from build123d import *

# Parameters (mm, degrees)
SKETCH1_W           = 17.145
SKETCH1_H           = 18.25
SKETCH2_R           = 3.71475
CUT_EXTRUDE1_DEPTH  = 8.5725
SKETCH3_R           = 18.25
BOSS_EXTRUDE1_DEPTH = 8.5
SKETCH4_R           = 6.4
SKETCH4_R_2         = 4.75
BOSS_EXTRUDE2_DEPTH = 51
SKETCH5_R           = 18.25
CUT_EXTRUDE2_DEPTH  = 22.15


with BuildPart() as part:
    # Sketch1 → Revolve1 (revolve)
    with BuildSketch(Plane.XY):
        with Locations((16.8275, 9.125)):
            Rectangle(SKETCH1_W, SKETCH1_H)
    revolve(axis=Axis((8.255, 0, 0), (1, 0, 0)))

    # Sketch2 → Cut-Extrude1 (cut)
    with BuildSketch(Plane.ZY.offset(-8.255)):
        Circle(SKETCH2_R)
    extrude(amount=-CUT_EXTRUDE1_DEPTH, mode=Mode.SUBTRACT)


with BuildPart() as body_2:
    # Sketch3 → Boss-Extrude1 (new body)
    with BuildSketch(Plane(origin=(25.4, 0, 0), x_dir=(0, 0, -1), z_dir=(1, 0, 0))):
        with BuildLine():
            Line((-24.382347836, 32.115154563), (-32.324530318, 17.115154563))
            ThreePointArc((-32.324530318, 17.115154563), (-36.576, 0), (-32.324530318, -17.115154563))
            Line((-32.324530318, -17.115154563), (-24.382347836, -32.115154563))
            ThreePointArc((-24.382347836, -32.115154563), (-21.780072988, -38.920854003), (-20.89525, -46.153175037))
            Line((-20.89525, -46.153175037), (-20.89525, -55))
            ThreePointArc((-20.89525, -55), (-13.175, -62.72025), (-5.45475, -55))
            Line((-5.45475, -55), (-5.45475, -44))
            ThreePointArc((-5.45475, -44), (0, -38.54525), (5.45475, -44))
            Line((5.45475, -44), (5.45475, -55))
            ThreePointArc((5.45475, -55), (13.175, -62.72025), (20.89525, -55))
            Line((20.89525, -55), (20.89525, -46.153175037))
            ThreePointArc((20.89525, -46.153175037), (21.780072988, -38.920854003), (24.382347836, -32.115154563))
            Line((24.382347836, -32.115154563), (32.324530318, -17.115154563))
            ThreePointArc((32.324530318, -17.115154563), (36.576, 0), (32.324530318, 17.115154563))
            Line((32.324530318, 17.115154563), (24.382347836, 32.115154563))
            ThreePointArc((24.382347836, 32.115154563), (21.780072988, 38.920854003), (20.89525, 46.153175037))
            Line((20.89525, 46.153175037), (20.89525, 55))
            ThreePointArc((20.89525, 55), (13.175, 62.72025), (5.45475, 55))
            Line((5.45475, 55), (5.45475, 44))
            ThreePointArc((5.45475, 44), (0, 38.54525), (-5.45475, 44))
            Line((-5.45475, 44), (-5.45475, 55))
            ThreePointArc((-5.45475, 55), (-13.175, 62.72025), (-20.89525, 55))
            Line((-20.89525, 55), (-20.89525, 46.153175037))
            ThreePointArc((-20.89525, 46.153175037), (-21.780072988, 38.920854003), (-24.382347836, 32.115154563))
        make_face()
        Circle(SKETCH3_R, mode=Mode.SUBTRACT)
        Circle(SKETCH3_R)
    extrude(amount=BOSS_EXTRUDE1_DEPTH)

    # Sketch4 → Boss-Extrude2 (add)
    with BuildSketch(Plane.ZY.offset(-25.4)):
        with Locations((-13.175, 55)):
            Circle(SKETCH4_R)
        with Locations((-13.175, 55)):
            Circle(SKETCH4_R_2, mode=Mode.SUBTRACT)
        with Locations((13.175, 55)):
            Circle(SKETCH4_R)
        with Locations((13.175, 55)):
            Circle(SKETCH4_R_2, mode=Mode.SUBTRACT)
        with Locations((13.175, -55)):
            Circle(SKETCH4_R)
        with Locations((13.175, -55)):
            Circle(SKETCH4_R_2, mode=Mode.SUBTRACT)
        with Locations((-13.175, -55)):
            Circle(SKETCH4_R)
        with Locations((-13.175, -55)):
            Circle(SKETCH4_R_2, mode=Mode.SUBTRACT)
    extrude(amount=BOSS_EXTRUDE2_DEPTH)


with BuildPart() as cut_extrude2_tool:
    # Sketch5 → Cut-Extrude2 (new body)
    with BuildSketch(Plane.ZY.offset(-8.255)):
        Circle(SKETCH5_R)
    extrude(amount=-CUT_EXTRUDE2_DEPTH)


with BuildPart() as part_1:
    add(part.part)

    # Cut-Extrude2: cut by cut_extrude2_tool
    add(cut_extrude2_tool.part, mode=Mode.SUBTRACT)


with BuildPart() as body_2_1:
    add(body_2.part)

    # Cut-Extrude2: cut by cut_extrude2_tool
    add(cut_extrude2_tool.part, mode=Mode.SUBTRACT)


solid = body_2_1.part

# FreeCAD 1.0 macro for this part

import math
import FreeCAD as App
import Part
import Sketcher

V = App.Vector


def add_polygon(sketch, points):
    """Adds a closed chain of lines whose ends are joined by coincident constraints."""
    first, n = sketch.GeometryCount, len(points)
    for a, b in zip(points, points[1:] + points[:1]):
        sketch.addGeometry(Part.LineSegment(App.Vector(*a, 0), App.Vector(*b, 0)), False)
    for i in range(n):
        sketch.addConstraint(Sketcher.Constraint("Coincident", first + i, 2, first + (i + 1) % n, 1))

doc = App.newDocument("Part")
body = doc.addObject("PartDesign::Body", "Body")

# Sketch on XY plane
sketch1 = body.newObject("Sketcher::SketchObject", "Sketch")
sketch1.AttachmentSupport = (doc.getObject("XY_Plane"), [""])
sketch1.MapMode = "FlatFace"
add_polygon(sketch1, [(8, 18), (8, 0), (25, 0), (25, 18)])  # lines 0-3
sketch1.addConstraint(Sketcher.Constraint("Vertical", 0))
sketch1.addConstraint(Sketcher.Constraint("Horizontal", 1))
sketch1.addConstraint(Sketcher.Constraint("Vertical", 2))
sketch1.addConstraint(Sketcher.Constraint("Horizontal", 3))
sketch1.addConstraint(Sketcher.Constraint("PointOnObject", 0, 2, -1))
sketch1.addConstraint(Sketcher.Constraint("DistanceY", 0, 2, 0, 1, 18.25))
sketch1.addConstraint(Sketcher.Constraint("DistanceX", -1, 1, 1, 2, 25.4))
sketch1.addConstraint(Sketcher.Constraint("DistanceX", 1, 1, 1, 2, 17.145))
revolution = body.newObject("PartDesign::Revolution", "Revolution")
revolution.Profile = sketch1
revolution.ReferenceAxis = (sketch1, ["H_Axis"])
revolution.Angle = 360

# Sketch on YZ plane
sketch2 = body.newObject("Sketcher::SketchObject", "Sketch001")
sketch2.AttachmentSupport = (doc.getObject("YZ_Plane"), [""])
sketch2.MapMode = "FlatFace"
sketch2.AttachmentOffset = App.Placement(V(0, 0, 8.255), App.Rotation())
sketch2.addGeometry(Part.Circle(V(0, 0, 0), V(0, 0, 1), 3.7), False)
sketch2.addConstraint(Sketcher.Constraint("Coincident", 0, 3, -1, 1))
sketch2.addConstraint(Sketcher.Constraint("Diameter", 0, 7.4295))
pocket1 = body.newObject("PartDesign::Pocket", "Pocket")
pocket1.Profile = sketch2
pocket1.Length = 8.5725
pocket1.Reversed = True
body2 = doc.addObject("PartDesign::Body", "Body001")

# Sketch on YZ plane
sketch3 = body2.newObject("Sketcher::SketchObject", "Sketch002")
sketch3.AttachmentSupport = (doc.getObject("YZ_Plane001"), [""])
sketch3.MapMode = "FlatFace"
sketch3.AttachmentOffset = App.Placement(V(0, 0, 25.4), App.Rotation())
sketch3.addGeometry(Part.LineSegment(V(32, 24, 0), V(17, 32, 0)), False)
sketch3.addGeometry(Part.ArcOfCircle(Part.Circle(V(0, 0, 0), V(0, 0, 1), 37), math.radians(62), math.radians(118)), False)
sketch3.addGeometry(Part.LineSegment(V(-17, 32, 0), V(-32, 24, 0)), False)
sketch3.addGeometry(Part.ArcOfCircle(Part.Circle(V(-46, 51, 0), V(0, 0, 1), 30), math.radians(-90), math.radians(-62)), False)
sketch3.addGeometry(Part.LineSegment(V(-46, 21, 0), V(-55, 21, 0)), False)
sketch3.addGeometry(Part.ArcOfCircle(Part.Circle(V(-55, 13, 0), V(0, 0, 1), 8), math.radians(90), math.radians(270)), False)
sketch3.addGeometry(Part.LineSegment(V(-55, 5, 0), V(-44, 5, 0)), False)
sketch3.addGeometry(Part.ArcOfCircle(Part.Circle(V(-44, 0, 0), V(0, 0, 1), 5), math.radians(-90), math.radians(90)), False)
sketch3.addGeometry(Part.LineSegment(V(-44, -5, 0), V(-55, -5, 0)), False)
sketch3.addGeometry(Part.ArcOfCircle(Part.Circle(V(-55, -13, 0), V(0, 0, 1), 8), math.radians(90), math.radians(270)), False)
sketch3.addGeometry(Part.LineSegment(V(-55, -21, 0), V(-46, -21, 0)), False)
sketch3.addGeometry(Part.ArcOfCircle(Part.Circle(V(-46, -51, 0), V(0, 0, 1), 30), math.radians(62), math.radians(90)), False)
sketch3.addGeometry(Part.LineSegment(V(-32, -24, 0), V(-17, -32, 0)), False)
sketch3.addGeometry(Part.ArcOfCircle(Part.Circle(V(0, 0, 0), V(0, 0, 1), 37), math.radians(-118), math.radians(-62)), False)
sketch3.addGeometry(Part.LineSegment(V(17, -32, 0), V(32, -24, 0)), False)
sketch3.addGeometry(Part.ArcOfCircle(Part.Circle(V(46, -51, 0), V(0, 0, 1), 30), math.radians(90), math.radians(118)), False)
sketch3.addGeometry(Part.LineSegment(V(46, -21, 0), V(55, -21, 0)), False)
sketch3.addGeometry(Part.ArcOfCircle(Part.Circle(V(55, -13, 0), V(0, 0, 1), 8), math.radians(-90), math.radians(90)), False)
sketch3.addGeometry(Part.LineSegment(V(55, -5, 0), V(44, -5, 0)), False)
sketch3.addGeometry(Part.ArcOfCircle(Part.Circle(V(44, 0, 0), V(0, 0, 1), 5), math.radians(90), math.radians(270)), False)
sketch3.addGeometry(Part.LineSegment(V(44, 5, 0), V(55, 5, 0)), False)
sketch3.addGeometry(Part.ArcOfCircle(Part.Circle(V(55, 13, 0), V(0, 0, 1), 8), math.radians(-90), math.radians(90)), False)
sketch3.addGeometry(Part.LineSegment(V(55, 21, 0), V(46, 21, 0)), False)
sketch3.addGeometry(Part.ArcOfCircle(Part.Circle(V(46, 51, 0), V(0, 0, 1), 30), math.radians(-118), math.radians(-90)), False)
sketch3.addConstraint(Sketcher.Constraint("Tangent", 0, 2, 1, 1))
sketch3.addConstraint(Sketcher.Constraint("Tangent", 1, 2, 2, 1))
sketch3.addConstraint(Sketcher.Constraint("Tangent", 2, 2, 3, 2))
sketch3.addConstraint(Sketcher.Constraint("Tangent", 3, 1, 4, 1))
sketch3.addConstraint(Sketcher.Constraint("Tangent", 4, 2, 5, 1))
sketch3.addConstraint(Sketcher.Constraint("Tangent", 5, 2, 6, 1))
sketch3.addConstraint(Sketcher.Constraint("Tangent", 6, 2, 7, 2))
sketch3.addConstraint(Sketcher.Constraint("Tangent", 7, 1, 8, 1))
sketch3.addConstraint(Sketcher.Constraint("Tangent", 8, 2, 9, 1))
sketch3.addConstraint(Sketcher.Constraint("Tangent", 9, 2, 10, 1))
sketch3.addConstraint(Sketcher.Constraint("Tangent", 10, 2, 11, 2))
sketch3.addConstraint(Sketcher.Constraint("Tangent", 11, 1, 12, 1))
sketch3.addConstraint(Sketcher.Constraint("Tangent", 12, 2, 13, 1))
sketch3.addConstraint(Sketcher.Constraint("Tangent", 13, 2, 14, 1))
sketch3.addConstraint(Sketcher.Constraint("Tangent", 14, 2, 15, 2))
sketch3.addConstraint(Sketcher.Constraint("Tangent", 15, 1, 16, 1))
sketch3.addConstraint(Sketcher.Constraint("Tangent", 16, 2, 17, 1))
sketch3.addConstraint(Sketcher.Constraint("Tangent", 17, 2, 18, 1))
sketch3.addConstraint(Sketcher.Constraint("Tangent", 18, 2, 19, 2))
sketch3.addConstraint(Sketcher.Constraint("Tangent", 19, 1, 20, 1))
sketch3.addConstraint(Sketcher.Constraint("Tangent", 20, 2, 21, 1))
sketch3.addConstraint(Sketcher.Constraint("Tangent", 21, 2, 22, 1))
sketch3.addConstraint(Sketcher.Constraint("Tangent", 22, 2, 23, 2))
sketch3.addConstraint(Sketcher.Constraint("Tangent", 23, 1, 0, 1))
sketch3.addConstraint(Sketcher.Constraint("Horizontal", 4))
sketch3.addConstraint(Sketcher.Constraint("Horizontal", 6))
sketch3.addConstraint(Sketcher.Constraint("Horizontal", 8))
sketch3.addConstraint(Sketcher.Constraint("Horizontal", 10))
sketch3.addConstraint(Sketcher.Constraint("Horizontal", 16))
sketch3.addConstraint(Sketcher.Constraint("Horizontal", 18))
sketch3.addConstraint(Sketcher.Constraint("Horizontal", 20))
sketch3.addConstraint(Sketcher.Constraint("Horizontal", 22))
sketch3.addConstraint(Sketcher.Constraint("Coincident", 1, 3, -1, 1))
sketch3.addConstraint(Sketcher.Constraint("Coincident", 13, 3, -1, 1))
sketch3.addConstraint(Sketcher.Constraint("Equal", 5, 9))
sketch3.addConstraint(Sketcher.Constraint("Equal", 3, 11))
sketch3.addConstraint(Sketcher.Constraint("Equal", 1, 13))
sketch3.addConstraint(Sketcher.Constraint("Equal", 11, 15))
sketch3.addConstraint(Sketcher.Constraint("Equal", 9, 17))
sketch3.addConstraint(Sketcher.Constraint("Equal", 7, 19))
sketch3.addConstraint(Sketcher.Constraint("Equal", 17, 21))
sketch3.addConstraint(Sketcher.Constraint("Equal", 15, 23))
sketch3.addConstraint(Sketcher.Constraint("Symmetric", 3, 3, 15, 3, -1, 1))
sketch3.addConstraint(Sketcher.Constraint("Symmetric", 11, 3, 15, 3, -2))
sketch3.addConstraint(Sketcher.Constraint("Parallel", 0, 12))
sketch3.addConstraint(Sketcher.Constraint("Vertical", 5, 3, 9, 3))
sketch3.addConstraint(Sketcher.Constraint("Vertical", 17, 3, 21, 3))
sketch3.addConstraint(Sketcher.Constraint("Equal", 10, 16))
sketch3.addConstraint(Sketcher.Constraint("Equal", 8, 18))
sketch3.addConstraint(Sketcher.Constraint("Radius", 3, 30.0))
sketch3.addConstraint(Sketcher.Constraint("DistanceX", 6, 1, 6, 2, 11.0))
sketch3.addConstraint(Sketcher.Constraint("DistanceX", 5, 3, -1, 1, 55.0))
sketch3.addConstraint(Sketcher.Constraint("Radius", 1, 36.576))
sketch3.addConstraint(Sketcher.Constraint("DistanceX", 2, 2, 1, 2, 15.0))
sketch3.addConstraint(Sketcher.Constraint("Radius", 5, 7.72025))
sketch3.addConstraint(Sketcher.Constraint("Radius", 7, 5.45475))
pad1 = body2.newObject("PartDesign::Pad", "Pad")
pad1.Profile = sketch3
pad1.Length = 8.5

# Sketch on YZ plane
sketch4 = body2.newObject("Sketcher::SketchObject", "Sketch003")
sketch4.AttachmentSupport = (doc.getObject("YZ_Plane001"), [""])
sketch4.MapMode = "FlatFace"
sketch4.AttachmentOffset = App.Placement(V(0, 0, 25.4), App.Rotation())
sketch4.addGeometry(Part.Circle(V(55, -13.2, 0), V(0, 0, 1), 6.4), False)
sketch4.addGeometry(Part.Circle(V(55, -13.2, 0), V(0, 0, 1), 4.8), False)
sketch4.addGeometry(Part.Circle(V(55, 13.2, 0), V(0, 0, 1), 6.4), False)
sketch4.addGeometry(Part.Circle(V(55, 13.2, 0), V(0, 0, 1), 4.8), False)
sketch4.addGeometry(Part.Circle(V(-55, 13.2, 0), V(0, 0, 1), 6.4), False)
sketch4.addGeometry(Part.Circle(V(-55, 13.2, 0), V(0, 0, 1), 4.8), False)
sketch4.addGeometry(Part.Circle(V(-55, -13.2, 0), V(0, 0, 1), 6.4), False)
sketch4.addGeometry(Part.Circle(V(-55, -13.2, 0), V(0, 0, 1), 4.8), False)
sketch4.addConstraint(Sketcher.Constraint("Coincident", 1, 3, 0, 3))
sketch4.addConstraint(Sketcher.Constraint("Coincident", 3, 3, 2, 3))
sketch4.addConstraint(Sketcher.Constraint("Coincident", 5, 3, 4, 3))
sketch4.addConstraint(Sketcher.Constraint("Coincident", 7, 3, 6, 3))
sketch4.addConstraint(Sketcher.Constraint("Equal", 0, 2))
sketch4.addConstraint(Sketcher.Constraint("Equal", 1, 3))
sketch4.addConstraint(Sketcher.Constraint("Equal", 2, 4))
sketch4.addConstraint(Sketcher.Constraint("Equal", 3, 5))
sketch4.addConstraint(Sketcher.Constraint("Equal", 4, 6))
sketch4.addConstraint(Sketcher.Constraint("Equal", 5, 7))
sketch4.addConstraint(Sketcher.Constraint("Symmetric", 0, 3, 4, 3, -1, 1))
sketch4.addConstraint(Sketcher.Constraint("Symmetric", 2, 3, 6, 3, -1, 1))
sketch4.addConstraint(Sketcher.Constraint("Symmetric", 2, 3, 4, 3, -2))
sketch4.addConstraint(Sketcher.Constraint("Diameter", 0, 12.8))
sketch4.addConstraint(Sketcher.Constraint("Diameter", 1, 9.5))
sketch4.addConstraint(Sketcher.Constraint("DistanceX", -1, 1, 0, 3, 55.0))
sketch4.addConstraint(Sketcher.Constraint("DistanceY", 0, 3, 2, 3, 26.35))
pad2 = body2.newObject("PartDesign::Pad", "Pad001")
pad2.Profile = sketch4
pad2.Length = 51
pad2.Reversed = True
body3 = doc.addObject("PartDesign::Body", "Body002")

# Sketch on YZ plane
sketch5 = body3.newObject("Sketcher::SketchObject", "Sketch004")
sketch5.AttachmentSupport = (doc.getObject("YZ_Plane002"), [""])
sketch5.MapMode = "FlatFace"
sketch5.AttachmentOffset = App.Placement(V(0, 0, 8.255), App.Rotation())
sketch5.addGeometry(Part.Circle(V(0, 0, 0), V(0, 0, 1), 18), False)
sketch5.addConstraint(Sketcher.Constraint("Coincident", 0, 3, -1, 1))
sketch5.addConstraint(Sketcher.Constraint("Diameter", 0, 36.5))
pad3 = body3.newObject("PartDesign::Pad", "Pad002")
pad3.Profile = sketch5
pad3.Length = 22.15
doc.recompute()

body4 = doc.addObject("PartDesign::Body", "Body003")
body4.BaseFeature = body3
boolean = body.newObject("PartDesign::Boolean", "Boolean")
boolean.Type = "Cut"
boolean.addObjects([body4])
doc.recompute()

boolean2 = body2.newObject("PartDesign::Boolean", "Boolean001")
boolean2.Type = "Cut"
boolean2.addObjects([body3])

doc.recompute()
